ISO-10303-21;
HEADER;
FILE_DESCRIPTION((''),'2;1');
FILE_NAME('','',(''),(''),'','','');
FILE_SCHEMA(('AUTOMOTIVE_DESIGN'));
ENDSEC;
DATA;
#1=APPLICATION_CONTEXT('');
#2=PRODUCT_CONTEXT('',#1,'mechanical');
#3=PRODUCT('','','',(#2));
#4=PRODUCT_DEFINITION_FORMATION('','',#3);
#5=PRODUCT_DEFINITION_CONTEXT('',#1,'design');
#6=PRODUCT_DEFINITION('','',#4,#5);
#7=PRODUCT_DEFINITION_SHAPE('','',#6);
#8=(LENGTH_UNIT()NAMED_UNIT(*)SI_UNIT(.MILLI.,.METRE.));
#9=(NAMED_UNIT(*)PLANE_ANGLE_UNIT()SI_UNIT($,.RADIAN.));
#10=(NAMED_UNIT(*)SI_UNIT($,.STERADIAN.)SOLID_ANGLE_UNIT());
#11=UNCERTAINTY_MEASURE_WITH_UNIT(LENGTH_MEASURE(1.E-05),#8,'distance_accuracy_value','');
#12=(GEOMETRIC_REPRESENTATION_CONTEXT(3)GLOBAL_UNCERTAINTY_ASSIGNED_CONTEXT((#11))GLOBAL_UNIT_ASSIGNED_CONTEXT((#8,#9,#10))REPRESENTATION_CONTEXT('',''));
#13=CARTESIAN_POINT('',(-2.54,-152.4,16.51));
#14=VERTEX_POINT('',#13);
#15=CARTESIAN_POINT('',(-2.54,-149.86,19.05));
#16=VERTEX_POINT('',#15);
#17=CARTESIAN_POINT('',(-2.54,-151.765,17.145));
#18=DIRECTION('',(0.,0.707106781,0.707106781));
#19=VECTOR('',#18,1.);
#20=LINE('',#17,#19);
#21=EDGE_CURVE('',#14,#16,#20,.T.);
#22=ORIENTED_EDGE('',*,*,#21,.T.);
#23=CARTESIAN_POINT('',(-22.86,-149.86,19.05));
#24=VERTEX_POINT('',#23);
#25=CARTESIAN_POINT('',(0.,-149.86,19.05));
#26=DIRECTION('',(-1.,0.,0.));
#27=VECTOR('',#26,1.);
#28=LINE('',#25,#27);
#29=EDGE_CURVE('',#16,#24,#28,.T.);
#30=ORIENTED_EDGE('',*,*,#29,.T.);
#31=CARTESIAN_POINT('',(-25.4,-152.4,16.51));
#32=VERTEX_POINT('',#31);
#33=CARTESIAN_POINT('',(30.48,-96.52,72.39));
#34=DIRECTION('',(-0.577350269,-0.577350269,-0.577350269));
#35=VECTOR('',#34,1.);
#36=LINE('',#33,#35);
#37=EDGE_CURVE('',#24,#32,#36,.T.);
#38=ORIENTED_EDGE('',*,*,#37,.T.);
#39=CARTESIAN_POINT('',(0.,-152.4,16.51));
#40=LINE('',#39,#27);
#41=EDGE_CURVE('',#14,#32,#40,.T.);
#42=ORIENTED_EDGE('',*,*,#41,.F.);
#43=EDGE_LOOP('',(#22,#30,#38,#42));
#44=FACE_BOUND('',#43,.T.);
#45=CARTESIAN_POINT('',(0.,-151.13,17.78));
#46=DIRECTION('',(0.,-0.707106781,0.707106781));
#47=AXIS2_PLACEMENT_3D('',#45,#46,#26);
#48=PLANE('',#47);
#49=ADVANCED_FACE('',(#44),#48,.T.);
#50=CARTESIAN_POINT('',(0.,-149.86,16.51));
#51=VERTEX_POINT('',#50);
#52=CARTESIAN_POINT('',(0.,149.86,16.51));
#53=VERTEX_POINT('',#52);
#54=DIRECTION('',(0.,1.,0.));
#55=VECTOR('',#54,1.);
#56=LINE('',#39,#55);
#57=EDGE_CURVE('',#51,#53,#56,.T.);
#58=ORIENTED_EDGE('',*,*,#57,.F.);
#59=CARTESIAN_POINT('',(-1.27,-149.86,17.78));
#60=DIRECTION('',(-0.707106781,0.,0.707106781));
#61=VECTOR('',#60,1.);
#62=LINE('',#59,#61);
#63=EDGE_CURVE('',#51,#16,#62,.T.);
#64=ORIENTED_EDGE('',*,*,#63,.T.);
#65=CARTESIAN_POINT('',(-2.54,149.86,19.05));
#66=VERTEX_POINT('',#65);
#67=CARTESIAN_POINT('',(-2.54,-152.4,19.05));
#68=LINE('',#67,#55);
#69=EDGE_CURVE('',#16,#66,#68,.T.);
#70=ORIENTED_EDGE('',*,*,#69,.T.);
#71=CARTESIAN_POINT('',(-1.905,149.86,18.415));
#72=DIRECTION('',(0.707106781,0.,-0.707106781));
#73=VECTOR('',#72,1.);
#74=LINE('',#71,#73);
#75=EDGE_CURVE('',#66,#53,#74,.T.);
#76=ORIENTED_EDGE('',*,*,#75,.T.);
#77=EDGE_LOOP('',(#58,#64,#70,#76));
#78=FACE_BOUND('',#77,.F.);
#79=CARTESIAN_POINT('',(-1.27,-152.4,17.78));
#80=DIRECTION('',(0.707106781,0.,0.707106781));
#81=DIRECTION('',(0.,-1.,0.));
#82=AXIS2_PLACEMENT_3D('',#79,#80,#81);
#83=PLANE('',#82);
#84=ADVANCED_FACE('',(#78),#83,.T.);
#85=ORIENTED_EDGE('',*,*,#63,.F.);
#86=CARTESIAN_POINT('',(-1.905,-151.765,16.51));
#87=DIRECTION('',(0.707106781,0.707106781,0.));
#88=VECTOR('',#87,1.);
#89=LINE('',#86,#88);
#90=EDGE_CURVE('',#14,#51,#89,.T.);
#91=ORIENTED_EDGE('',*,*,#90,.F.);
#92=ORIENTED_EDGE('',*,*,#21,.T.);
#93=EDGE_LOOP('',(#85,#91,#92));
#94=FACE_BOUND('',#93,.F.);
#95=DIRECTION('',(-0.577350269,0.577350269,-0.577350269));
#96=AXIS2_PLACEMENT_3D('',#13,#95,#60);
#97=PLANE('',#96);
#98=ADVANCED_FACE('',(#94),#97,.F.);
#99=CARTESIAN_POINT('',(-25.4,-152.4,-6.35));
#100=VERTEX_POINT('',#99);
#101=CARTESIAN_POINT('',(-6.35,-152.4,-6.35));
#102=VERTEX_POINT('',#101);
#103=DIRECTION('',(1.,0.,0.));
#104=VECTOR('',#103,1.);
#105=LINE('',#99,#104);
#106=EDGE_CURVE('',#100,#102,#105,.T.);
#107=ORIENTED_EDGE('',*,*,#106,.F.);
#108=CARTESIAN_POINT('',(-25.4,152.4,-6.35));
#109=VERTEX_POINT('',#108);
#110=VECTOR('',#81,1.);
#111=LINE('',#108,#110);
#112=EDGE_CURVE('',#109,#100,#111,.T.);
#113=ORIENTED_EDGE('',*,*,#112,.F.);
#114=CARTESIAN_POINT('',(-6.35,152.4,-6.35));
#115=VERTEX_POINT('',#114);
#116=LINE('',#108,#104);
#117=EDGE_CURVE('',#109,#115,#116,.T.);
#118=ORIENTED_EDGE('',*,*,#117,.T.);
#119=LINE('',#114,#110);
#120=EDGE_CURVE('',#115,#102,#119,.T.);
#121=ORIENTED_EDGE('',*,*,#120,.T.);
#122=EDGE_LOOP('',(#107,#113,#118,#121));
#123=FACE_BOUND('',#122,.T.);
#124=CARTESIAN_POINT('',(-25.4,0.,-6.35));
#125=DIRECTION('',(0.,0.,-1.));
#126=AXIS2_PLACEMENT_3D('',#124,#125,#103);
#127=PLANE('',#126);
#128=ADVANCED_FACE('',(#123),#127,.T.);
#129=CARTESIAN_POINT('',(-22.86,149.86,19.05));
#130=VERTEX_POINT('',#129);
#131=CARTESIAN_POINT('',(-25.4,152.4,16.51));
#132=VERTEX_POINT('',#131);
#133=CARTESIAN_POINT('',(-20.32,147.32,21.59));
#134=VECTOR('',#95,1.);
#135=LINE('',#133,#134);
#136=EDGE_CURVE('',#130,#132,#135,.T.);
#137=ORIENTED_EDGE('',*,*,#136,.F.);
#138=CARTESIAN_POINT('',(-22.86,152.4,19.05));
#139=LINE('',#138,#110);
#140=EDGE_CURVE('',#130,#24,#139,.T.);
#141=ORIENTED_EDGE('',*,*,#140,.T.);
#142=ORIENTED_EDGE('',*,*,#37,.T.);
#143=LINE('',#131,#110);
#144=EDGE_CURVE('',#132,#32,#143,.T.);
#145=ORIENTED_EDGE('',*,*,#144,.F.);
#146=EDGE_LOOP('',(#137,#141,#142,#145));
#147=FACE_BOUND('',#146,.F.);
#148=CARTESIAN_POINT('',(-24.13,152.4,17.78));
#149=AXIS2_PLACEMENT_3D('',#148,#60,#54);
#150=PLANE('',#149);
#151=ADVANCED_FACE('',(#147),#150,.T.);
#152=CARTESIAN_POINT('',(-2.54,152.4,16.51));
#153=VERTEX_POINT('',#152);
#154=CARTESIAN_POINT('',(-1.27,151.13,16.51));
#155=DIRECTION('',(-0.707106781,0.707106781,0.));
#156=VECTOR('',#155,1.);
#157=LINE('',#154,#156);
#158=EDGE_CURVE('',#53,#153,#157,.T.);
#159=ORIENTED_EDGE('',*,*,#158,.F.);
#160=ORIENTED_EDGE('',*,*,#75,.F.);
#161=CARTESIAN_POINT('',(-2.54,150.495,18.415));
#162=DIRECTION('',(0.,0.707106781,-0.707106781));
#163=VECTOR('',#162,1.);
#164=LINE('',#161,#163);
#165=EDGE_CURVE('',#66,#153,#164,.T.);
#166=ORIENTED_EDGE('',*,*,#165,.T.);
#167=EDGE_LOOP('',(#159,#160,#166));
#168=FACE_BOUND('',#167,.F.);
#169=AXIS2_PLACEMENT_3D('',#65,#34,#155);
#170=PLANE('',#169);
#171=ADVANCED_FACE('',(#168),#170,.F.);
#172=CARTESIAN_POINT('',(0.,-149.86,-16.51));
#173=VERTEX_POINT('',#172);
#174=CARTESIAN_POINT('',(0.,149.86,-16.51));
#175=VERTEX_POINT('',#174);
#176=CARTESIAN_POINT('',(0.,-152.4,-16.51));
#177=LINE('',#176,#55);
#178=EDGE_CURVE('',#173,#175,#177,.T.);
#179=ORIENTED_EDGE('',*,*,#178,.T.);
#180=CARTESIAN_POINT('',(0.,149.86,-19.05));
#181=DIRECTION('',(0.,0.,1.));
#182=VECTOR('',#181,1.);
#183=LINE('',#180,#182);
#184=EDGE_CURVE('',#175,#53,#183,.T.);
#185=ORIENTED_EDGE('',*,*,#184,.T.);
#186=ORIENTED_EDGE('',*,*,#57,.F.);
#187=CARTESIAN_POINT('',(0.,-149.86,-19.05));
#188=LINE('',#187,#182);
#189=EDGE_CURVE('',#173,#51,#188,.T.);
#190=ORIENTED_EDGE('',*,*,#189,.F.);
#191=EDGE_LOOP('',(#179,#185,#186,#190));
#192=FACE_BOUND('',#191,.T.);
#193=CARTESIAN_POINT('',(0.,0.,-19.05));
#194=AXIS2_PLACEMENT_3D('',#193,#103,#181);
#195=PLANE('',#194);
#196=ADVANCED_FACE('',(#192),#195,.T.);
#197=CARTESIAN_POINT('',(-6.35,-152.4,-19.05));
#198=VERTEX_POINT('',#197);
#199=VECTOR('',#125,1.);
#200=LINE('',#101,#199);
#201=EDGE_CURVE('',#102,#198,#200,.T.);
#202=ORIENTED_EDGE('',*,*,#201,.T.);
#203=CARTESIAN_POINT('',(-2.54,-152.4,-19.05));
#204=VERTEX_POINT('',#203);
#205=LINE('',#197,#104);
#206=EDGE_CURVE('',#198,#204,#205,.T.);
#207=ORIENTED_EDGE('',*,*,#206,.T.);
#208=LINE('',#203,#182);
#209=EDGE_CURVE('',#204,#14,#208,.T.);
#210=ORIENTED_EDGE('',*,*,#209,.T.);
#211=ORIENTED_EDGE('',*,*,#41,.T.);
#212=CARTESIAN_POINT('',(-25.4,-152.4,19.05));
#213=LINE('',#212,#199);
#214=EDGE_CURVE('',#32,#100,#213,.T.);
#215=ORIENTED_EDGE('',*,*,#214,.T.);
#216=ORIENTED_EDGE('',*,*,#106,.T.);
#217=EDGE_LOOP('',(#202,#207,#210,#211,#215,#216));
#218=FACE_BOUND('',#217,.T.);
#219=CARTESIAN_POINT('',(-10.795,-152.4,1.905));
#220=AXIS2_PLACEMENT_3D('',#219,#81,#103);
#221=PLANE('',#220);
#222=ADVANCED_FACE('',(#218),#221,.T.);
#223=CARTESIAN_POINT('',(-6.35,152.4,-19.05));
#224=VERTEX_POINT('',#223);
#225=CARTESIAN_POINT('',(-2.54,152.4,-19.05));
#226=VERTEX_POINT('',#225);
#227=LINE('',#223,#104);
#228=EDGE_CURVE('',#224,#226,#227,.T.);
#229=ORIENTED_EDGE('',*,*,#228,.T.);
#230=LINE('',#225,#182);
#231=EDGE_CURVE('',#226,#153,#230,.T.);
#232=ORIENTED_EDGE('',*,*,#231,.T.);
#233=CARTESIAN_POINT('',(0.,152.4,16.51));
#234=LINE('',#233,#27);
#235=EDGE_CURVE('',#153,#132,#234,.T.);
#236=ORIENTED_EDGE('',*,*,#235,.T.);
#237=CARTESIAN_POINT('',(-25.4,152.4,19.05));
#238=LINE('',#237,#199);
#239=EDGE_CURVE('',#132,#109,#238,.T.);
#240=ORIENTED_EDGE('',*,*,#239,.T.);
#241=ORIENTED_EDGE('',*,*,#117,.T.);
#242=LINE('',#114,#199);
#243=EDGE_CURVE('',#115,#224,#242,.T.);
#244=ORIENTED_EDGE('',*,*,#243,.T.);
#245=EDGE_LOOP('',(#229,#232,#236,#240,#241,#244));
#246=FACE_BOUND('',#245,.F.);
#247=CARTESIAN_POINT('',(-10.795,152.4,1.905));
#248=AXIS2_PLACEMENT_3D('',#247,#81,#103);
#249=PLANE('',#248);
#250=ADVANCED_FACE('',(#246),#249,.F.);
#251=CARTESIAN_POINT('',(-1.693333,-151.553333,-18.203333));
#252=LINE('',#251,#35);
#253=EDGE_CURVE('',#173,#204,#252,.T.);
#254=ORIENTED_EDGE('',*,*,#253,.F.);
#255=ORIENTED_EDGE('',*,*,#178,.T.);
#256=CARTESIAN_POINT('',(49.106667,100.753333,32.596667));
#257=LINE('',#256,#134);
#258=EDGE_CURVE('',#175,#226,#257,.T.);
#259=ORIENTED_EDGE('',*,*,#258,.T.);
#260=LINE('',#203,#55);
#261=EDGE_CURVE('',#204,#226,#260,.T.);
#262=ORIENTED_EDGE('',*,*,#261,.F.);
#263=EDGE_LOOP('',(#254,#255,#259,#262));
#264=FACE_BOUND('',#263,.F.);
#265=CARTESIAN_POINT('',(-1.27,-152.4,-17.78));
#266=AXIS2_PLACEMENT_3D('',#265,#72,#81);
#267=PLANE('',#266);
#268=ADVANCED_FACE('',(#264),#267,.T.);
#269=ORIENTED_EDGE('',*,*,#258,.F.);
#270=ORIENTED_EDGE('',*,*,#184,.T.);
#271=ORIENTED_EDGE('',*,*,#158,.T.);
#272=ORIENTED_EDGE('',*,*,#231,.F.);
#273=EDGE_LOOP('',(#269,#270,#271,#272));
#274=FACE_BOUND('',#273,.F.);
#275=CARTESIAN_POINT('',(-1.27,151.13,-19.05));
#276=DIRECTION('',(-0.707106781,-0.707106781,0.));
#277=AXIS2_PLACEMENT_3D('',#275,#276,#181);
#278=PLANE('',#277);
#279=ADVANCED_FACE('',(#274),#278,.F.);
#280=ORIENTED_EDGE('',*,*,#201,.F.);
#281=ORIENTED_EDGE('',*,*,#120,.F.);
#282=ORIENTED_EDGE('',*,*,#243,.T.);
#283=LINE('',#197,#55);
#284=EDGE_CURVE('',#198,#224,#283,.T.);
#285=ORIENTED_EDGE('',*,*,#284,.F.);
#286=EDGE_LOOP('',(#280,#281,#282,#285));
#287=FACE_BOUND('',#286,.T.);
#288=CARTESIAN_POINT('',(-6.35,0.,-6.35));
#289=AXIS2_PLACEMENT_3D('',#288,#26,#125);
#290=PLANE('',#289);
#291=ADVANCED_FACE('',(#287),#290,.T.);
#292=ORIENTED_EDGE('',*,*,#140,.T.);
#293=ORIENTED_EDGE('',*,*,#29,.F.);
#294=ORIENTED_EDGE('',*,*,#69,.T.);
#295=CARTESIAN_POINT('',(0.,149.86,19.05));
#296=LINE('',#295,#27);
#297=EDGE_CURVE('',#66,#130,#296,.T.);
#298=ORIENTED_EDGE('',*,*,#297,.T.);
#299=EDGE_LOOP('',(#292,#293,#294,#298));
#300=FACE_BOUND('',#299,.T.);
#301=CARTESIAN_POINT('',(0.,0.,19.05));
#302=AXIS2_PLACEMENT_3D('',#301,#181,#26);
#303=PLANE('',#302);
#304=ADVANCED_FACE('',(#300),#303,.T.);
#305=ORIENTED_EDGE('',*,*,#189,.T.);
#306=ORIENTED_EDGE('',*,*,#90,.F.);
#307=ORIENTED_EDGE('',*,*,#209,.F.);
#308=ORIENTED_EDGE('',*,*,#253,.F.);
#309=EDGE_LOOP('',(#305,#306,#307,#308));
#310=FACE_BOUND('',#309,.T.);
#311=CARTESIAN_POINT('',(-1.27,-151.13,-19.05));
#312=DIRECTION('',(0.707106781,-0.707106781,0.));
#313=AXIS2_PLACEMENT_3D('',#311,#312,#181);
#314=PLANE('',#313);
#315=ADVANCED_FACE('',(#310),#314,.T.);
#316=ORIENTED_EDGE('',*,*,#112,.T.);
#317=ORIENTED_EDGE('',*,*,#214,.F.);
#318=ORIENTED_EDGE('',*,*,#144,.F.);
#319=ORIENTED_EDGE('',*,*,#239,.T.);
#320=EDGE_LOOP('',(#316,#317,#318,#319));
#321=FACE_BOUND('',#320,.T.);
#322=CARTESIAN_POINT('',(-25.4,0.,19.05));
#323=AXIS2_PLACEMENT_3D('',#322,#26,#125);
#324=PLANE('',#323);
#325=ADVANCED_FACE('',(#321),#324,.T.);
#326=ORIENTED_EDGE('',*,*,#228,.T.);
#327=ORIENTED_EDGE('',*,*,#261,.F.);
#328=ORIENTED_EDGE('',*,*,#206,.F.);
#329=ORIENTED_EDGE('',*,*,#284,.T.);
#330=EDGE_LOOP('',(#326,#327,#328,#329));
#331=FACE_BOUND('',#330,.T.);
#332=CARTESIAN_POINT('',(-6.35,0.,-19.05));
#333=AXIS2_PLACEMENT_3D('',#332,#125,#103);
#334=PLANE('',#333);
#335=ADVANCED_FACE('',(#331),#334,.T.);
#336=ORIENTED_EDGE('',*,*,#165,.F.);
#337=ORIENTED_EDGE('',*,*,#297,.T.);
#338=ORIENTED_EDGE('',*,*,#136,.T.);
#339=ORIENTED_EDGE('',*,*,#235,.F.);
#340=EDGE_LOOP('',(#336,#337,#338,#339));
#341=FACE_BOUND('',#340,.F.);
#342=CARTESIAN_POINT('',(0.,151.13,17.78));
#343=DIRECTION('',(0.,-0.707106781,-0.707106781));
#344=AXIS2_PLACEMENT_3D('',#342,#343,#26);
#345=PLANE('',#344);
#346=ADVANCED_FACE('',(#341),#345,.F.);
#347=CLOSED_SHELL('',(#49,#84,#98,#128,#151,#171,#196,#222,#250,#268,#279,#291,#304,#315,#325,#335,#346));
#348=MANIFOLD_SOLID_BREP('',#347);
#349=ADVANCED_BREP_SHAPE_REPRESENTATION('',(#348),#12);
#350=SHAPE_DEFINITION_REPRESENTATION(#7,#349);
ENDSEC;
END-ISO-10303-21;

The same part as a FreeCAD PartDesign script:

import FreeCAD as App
import Part
import Sketcher

V = App.Vector
Q = App.Units.Quantity


def edges_at(feature, points):
    """Names of the edges that pass closest to the given points."""
    edges = feature.Shape.Edges
    near = lambda p: min(range(len(edges)), key=lambda i: edges[i].distToShape(Part.Vertex(*p))[0])
    return sorted({f"Edge{near(p) + 1}" for p in points})


def add_polygon(sketch, points):
    """Adds a closed chain of lines whose ends are joined by coincident constraints."""
    first, n = sketch.GeometryCount, len(points)
    for a, b in zip(points, points[1:] + points[:1]):
        sketch.addGeometry(Part.LineSegment(App.Vector(*a, 0), App.Vector(*b, 0)), False)
    for i in range(n):
        sketch.addConstraint(Sketcher.Constraint("Coincident", first + i, 2, first + (i + 1) % n, 1))

doc = App.newDocument("Part")
body = doc.addObject("PartDesign::Body", "Body")

# Sketch on XZ plane
sketch1 = body.newObject("Sketcher::SketchObject", "Sketch")
sketch1.AttachmentSupport = (doc.getObject("XZ_Plane"), [""])
sketch1.MapMode = "FlatFace"
add_polygon(sketch1, [(0, 19.05), (-25.4, 19.05), (-25.4, -6.35), (-6.35, -6.35), (-6.35, -19.05), (0, -19.05)])  # lines 0-5
sketch1.addConstraint([
    Sketcher.Constraint("Horizontal", 0),
    Sketcher.Constraint("Vertical", 1),
    Sketcher.Constraint("Horizontal", 2),
    Sketcher.Constraint("Vertical", 3),
    Sketcher.Constraint("Horizontal", 4),
    Sketcher.Constraint("Vertical", 5),
    Sketcher.Constraint("Symmetric", 4, 2, 5, 2, -1, 1),
    Sketcher.Constraint("Equal", 0, 1),
    Sketcher.Constraint("DistanceX", 0, 2, 0, 1, Q("1 in")),
    Sketcher.Constraint("DistanceY", 3, 2, 3, 1, Q("0.5 in")),
    Sketcher.Constraint("DistanceX", 2, 1, 2, 2, Q("0.75 in")),
])
pad1 = body.newObject("PartDesign::Pad", "Pad")
pad1.Profile = sketch1
pad1.Length = Q("12 in")
pad1.Midplane = True
doc.recompute()

chamfer = body.newObject("PartDesign::Chamfer", "Chamfer")
chamfer.Base = (pad1, edges_at(pad1, [
    (0, 152.4, 0),
    (0, 0, 19.05),
    (0, -152.4, 0),
    (0, 0, -19.05),
    (-12.7, 152.4, 19.05),
    (-25.4, 0, 19.05),
    (-12.7, -152.4, 19.05),
]))
chamfer.Size = Q("0.1 in")

doc.recompute()
